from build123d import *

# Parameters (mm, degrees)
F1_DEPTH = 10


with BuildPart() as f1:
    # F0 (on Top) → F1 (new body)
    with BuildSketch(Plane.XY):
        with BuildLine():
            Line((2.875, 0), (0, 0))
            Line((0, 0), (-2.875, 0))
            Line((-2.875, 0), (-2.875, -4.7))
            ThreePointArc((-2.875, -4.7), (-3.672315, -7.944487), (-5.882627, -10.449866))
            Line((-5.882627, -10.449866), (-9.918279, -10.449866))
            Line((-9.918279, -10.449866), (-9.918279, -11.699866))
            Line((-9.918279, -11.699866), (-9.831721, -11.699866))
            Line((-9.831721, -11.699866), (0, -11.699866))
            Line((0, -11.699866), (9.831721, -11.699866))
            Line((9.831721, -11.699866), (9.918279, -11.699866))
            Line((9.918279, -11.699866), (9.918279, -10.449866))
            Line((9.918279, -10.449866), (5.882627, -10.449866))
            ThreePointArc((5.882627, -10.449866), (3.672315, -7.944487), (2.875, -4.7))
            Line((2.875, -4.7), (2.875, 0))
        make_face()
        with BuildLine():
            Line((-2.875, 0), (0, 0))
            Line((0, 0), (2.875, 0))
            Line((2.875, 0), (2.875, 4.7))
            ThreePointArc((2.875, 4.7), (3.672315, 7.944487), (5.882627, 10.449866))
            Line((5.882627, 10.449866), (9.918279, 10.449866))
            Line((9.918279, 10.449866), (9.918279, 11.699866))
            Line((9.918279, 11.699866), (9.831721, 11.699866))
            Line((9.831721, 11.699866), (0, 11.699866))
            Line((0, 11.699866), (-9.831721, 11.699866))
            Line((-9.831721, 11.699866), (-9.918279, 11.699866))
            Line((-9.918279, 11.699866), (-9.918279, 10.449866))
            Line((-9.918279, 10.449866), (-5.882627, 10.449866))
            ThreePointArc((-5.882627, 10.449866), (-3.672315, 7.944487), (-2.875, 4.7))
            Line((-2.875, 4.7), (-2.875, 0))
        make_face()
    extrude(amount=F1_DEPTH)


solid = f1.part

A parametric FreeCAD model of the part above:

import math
import FreeCAD as App
import Part
import Sketcher

V = App.Vector

doc = App.newDocument("Part")
body = doc.addObject("PartDesign::Body", "Body")

# Sketch on XY plane
sketch1 = body.newObject("Sketcher::SketchObject", "Sketch")
sketch1.AttachmentSupport = (doc.getObject("XY_Plane"), [""])
sketch1.MapMode = "FlatFace"
sketch1.addGeometry([
    Part.ArcOfCircle(Part.Circle(V(-9.9, -4.7, 0), V(0, 0, 1), 7), math.radians(-55), math.radians(0)),  # 0
    Part.LineSegment(V(-5.9, -10.4, 0), V(-9.9, -10.4, 0)),  # 1
    Part.LineSegment(V(-9.9, -10.4, 0), V(-9.9, -11.7, 0)),  # 2
    Part.LineSegment(V(-9.9, -11.7, 0), V(9.9, -11.7, 0)),  # 3
    Part.LineSegment(V(9.9, -11.7, 0), V(9.9, -10.4, 0)),  # 4
    Part.LineSegment(V(9.9, -10.4, 0), V(5.9, -10.4, 0)),  # 5
    Part.ArcOfCircle(Part.Circle(V(9.9, -4.7, 0), V(0, 0, 1), 7), math.radians(-180), math.radians(-125)),  # 6
    Part.LineSegment(V(2.9, -4.7, 0), V(2.9, 4.7, 0)),  # 7
    Part.ArcOfCircle(Part.Circle(V(9.9, 4.7, 0), V(0, 0, 1), 7), math.radians(125), math.radians(180)),  # 8
    Part.LineSegment(V(5.9, 10.4, 0), V(9.9, 10.4, 0)),  # 9
    Part.LineSegment(V(9.9, 10.4, 0), V(9.9, 11.7, 0)),  # 10
    Part.LineSegment(V(9.9, 11.7, 0), V(-9.9, 11.7, 0)),  # 11
    Part.LineSegment(V(-9.9, 11.7, 0), V(-9.9, 10.4, 0)),  # 12
    Part.LineSegment(V(-9.9, 10.4, 0), V(-5.9, 10.4, 0)),  # 13
    Part.ArcOfCircle(Part.Circle(V(-9.9, 4.7, 0), V(0, 0, 1), 7), math.radians(0), math.radians(55)),  # 14
    Part.LineSegment(V(-2.9, 4.7, 0), V(-2.9, -4.7, 0)),  # 15
], False)
sketch1.addConstraint([
    Sketcher.Constraint("Coincident", 0, 1, 1, 1),
    Sketcher.Constraint("Coincident", 1, 2, 2, 1),
    Sketcher.Constraint("Coincident", 2, 2, 3, 1),
    Sketcher.Constraint("Coincident", 3, 2, 4, 1),
    Sketcher.Constraint("Coincident", 4, 2, 5, 1),
    Sketcher.Constraint("Coincident", 5, 2, 6, 2),
    Sketcher.Constraint("Tangent", 6, 1, 7, 1),
    Sketcher.Constraint("Tangent", 7, 2, 8, 2),
    Sketcher.Constraint("Coincident", 8, 1, 9, 1),
    Sketcher.Constraint("Coincident", 9, 2, 10, 1),
    Sketcher.Constraint("Coincident", 10, 2, 11, 1),
    Sketcher.Constraint("Coincident", 11, 2, 12, 1),
    Sketcher.Constraint("Coincident", 12, 2, 13, 1),
    Sketcher.Constraint("Coincident", 13, 2, 14, 2),
    Sketcher.Constraint("Tangent", 14, 1, 15, 1),
    Sketcher.Constraint("Tangent", 15, 2, 0, 2),
    Sketcher.Constraint("Horizontal", 1),
    Sketcher.Constraint("Vertical", 2),
    Sketcher.Constraint("Horizontal", 3),
    Sketcher.Constraint("Vertical", 4),
    Sketcher.Constraint("Horizontal", 5),
    Sketcher.Constraint("Vertical", 7),
    Sketcher.Constraint("Horizontal", 9),
    Sketcher.Constraint("Vertical", 10),
    Sketcher.Constraint("Horizontal", 11),
    Sketcher.Constraint("Vertical", 12),
    Sketcher.Constraint("Horizontal", 13),
    Sketcher.Constraint("Vertical", 15),
    Sketcher.Constraint("Equal", 0, 6),
    Sketcher.Constraint("Equal", 6, 8),
    Sketcher.Constraint("Equal", 8, 14),
    Sketcher.Constraint("Symmetric", 0, 3, 8, 3, -1, 1),
    Sketcher.Constraint("Symmetric", 1, 2, 9, 2, -1, 1),
    Sketcher.Constraint("Symmetric", 3, 2, 11, 2, -1, 1),
    Sketcher.Constraint("Symmetric", 5, 2, 13, 2, -1, 1),
    Sketcher.Constraint("Symmetric", 1, 2, 4, 2, -2),
    Sketcher.Constraint("Horizontal", 0, 3, 6, 3),
    Sketcher.Constraint("Radius", 0, 7.000002),
    Sketcher.Constraint("DistanceY", 7, 1, 7, 2, 9.4),
    Sketcher.Constraint("DistanceY", 2, 2, 2, 1, 1.25),
    Sketcher.Constraint("DistanceX", 14, 3, 7, 2, 12.750002),
    Sketcher.Constraint("DistanceX", 1, 2, 1, 1, 4.035652),
    Sketcher.Constraint("DistanceX", 3, 1, 3, 2, 19.836558),
])
pad1 = body.newObject("PartDesign::Pad", "Pad")
pad1.Profile = sketch1
pad1.Length = 10

doc.recompute()
